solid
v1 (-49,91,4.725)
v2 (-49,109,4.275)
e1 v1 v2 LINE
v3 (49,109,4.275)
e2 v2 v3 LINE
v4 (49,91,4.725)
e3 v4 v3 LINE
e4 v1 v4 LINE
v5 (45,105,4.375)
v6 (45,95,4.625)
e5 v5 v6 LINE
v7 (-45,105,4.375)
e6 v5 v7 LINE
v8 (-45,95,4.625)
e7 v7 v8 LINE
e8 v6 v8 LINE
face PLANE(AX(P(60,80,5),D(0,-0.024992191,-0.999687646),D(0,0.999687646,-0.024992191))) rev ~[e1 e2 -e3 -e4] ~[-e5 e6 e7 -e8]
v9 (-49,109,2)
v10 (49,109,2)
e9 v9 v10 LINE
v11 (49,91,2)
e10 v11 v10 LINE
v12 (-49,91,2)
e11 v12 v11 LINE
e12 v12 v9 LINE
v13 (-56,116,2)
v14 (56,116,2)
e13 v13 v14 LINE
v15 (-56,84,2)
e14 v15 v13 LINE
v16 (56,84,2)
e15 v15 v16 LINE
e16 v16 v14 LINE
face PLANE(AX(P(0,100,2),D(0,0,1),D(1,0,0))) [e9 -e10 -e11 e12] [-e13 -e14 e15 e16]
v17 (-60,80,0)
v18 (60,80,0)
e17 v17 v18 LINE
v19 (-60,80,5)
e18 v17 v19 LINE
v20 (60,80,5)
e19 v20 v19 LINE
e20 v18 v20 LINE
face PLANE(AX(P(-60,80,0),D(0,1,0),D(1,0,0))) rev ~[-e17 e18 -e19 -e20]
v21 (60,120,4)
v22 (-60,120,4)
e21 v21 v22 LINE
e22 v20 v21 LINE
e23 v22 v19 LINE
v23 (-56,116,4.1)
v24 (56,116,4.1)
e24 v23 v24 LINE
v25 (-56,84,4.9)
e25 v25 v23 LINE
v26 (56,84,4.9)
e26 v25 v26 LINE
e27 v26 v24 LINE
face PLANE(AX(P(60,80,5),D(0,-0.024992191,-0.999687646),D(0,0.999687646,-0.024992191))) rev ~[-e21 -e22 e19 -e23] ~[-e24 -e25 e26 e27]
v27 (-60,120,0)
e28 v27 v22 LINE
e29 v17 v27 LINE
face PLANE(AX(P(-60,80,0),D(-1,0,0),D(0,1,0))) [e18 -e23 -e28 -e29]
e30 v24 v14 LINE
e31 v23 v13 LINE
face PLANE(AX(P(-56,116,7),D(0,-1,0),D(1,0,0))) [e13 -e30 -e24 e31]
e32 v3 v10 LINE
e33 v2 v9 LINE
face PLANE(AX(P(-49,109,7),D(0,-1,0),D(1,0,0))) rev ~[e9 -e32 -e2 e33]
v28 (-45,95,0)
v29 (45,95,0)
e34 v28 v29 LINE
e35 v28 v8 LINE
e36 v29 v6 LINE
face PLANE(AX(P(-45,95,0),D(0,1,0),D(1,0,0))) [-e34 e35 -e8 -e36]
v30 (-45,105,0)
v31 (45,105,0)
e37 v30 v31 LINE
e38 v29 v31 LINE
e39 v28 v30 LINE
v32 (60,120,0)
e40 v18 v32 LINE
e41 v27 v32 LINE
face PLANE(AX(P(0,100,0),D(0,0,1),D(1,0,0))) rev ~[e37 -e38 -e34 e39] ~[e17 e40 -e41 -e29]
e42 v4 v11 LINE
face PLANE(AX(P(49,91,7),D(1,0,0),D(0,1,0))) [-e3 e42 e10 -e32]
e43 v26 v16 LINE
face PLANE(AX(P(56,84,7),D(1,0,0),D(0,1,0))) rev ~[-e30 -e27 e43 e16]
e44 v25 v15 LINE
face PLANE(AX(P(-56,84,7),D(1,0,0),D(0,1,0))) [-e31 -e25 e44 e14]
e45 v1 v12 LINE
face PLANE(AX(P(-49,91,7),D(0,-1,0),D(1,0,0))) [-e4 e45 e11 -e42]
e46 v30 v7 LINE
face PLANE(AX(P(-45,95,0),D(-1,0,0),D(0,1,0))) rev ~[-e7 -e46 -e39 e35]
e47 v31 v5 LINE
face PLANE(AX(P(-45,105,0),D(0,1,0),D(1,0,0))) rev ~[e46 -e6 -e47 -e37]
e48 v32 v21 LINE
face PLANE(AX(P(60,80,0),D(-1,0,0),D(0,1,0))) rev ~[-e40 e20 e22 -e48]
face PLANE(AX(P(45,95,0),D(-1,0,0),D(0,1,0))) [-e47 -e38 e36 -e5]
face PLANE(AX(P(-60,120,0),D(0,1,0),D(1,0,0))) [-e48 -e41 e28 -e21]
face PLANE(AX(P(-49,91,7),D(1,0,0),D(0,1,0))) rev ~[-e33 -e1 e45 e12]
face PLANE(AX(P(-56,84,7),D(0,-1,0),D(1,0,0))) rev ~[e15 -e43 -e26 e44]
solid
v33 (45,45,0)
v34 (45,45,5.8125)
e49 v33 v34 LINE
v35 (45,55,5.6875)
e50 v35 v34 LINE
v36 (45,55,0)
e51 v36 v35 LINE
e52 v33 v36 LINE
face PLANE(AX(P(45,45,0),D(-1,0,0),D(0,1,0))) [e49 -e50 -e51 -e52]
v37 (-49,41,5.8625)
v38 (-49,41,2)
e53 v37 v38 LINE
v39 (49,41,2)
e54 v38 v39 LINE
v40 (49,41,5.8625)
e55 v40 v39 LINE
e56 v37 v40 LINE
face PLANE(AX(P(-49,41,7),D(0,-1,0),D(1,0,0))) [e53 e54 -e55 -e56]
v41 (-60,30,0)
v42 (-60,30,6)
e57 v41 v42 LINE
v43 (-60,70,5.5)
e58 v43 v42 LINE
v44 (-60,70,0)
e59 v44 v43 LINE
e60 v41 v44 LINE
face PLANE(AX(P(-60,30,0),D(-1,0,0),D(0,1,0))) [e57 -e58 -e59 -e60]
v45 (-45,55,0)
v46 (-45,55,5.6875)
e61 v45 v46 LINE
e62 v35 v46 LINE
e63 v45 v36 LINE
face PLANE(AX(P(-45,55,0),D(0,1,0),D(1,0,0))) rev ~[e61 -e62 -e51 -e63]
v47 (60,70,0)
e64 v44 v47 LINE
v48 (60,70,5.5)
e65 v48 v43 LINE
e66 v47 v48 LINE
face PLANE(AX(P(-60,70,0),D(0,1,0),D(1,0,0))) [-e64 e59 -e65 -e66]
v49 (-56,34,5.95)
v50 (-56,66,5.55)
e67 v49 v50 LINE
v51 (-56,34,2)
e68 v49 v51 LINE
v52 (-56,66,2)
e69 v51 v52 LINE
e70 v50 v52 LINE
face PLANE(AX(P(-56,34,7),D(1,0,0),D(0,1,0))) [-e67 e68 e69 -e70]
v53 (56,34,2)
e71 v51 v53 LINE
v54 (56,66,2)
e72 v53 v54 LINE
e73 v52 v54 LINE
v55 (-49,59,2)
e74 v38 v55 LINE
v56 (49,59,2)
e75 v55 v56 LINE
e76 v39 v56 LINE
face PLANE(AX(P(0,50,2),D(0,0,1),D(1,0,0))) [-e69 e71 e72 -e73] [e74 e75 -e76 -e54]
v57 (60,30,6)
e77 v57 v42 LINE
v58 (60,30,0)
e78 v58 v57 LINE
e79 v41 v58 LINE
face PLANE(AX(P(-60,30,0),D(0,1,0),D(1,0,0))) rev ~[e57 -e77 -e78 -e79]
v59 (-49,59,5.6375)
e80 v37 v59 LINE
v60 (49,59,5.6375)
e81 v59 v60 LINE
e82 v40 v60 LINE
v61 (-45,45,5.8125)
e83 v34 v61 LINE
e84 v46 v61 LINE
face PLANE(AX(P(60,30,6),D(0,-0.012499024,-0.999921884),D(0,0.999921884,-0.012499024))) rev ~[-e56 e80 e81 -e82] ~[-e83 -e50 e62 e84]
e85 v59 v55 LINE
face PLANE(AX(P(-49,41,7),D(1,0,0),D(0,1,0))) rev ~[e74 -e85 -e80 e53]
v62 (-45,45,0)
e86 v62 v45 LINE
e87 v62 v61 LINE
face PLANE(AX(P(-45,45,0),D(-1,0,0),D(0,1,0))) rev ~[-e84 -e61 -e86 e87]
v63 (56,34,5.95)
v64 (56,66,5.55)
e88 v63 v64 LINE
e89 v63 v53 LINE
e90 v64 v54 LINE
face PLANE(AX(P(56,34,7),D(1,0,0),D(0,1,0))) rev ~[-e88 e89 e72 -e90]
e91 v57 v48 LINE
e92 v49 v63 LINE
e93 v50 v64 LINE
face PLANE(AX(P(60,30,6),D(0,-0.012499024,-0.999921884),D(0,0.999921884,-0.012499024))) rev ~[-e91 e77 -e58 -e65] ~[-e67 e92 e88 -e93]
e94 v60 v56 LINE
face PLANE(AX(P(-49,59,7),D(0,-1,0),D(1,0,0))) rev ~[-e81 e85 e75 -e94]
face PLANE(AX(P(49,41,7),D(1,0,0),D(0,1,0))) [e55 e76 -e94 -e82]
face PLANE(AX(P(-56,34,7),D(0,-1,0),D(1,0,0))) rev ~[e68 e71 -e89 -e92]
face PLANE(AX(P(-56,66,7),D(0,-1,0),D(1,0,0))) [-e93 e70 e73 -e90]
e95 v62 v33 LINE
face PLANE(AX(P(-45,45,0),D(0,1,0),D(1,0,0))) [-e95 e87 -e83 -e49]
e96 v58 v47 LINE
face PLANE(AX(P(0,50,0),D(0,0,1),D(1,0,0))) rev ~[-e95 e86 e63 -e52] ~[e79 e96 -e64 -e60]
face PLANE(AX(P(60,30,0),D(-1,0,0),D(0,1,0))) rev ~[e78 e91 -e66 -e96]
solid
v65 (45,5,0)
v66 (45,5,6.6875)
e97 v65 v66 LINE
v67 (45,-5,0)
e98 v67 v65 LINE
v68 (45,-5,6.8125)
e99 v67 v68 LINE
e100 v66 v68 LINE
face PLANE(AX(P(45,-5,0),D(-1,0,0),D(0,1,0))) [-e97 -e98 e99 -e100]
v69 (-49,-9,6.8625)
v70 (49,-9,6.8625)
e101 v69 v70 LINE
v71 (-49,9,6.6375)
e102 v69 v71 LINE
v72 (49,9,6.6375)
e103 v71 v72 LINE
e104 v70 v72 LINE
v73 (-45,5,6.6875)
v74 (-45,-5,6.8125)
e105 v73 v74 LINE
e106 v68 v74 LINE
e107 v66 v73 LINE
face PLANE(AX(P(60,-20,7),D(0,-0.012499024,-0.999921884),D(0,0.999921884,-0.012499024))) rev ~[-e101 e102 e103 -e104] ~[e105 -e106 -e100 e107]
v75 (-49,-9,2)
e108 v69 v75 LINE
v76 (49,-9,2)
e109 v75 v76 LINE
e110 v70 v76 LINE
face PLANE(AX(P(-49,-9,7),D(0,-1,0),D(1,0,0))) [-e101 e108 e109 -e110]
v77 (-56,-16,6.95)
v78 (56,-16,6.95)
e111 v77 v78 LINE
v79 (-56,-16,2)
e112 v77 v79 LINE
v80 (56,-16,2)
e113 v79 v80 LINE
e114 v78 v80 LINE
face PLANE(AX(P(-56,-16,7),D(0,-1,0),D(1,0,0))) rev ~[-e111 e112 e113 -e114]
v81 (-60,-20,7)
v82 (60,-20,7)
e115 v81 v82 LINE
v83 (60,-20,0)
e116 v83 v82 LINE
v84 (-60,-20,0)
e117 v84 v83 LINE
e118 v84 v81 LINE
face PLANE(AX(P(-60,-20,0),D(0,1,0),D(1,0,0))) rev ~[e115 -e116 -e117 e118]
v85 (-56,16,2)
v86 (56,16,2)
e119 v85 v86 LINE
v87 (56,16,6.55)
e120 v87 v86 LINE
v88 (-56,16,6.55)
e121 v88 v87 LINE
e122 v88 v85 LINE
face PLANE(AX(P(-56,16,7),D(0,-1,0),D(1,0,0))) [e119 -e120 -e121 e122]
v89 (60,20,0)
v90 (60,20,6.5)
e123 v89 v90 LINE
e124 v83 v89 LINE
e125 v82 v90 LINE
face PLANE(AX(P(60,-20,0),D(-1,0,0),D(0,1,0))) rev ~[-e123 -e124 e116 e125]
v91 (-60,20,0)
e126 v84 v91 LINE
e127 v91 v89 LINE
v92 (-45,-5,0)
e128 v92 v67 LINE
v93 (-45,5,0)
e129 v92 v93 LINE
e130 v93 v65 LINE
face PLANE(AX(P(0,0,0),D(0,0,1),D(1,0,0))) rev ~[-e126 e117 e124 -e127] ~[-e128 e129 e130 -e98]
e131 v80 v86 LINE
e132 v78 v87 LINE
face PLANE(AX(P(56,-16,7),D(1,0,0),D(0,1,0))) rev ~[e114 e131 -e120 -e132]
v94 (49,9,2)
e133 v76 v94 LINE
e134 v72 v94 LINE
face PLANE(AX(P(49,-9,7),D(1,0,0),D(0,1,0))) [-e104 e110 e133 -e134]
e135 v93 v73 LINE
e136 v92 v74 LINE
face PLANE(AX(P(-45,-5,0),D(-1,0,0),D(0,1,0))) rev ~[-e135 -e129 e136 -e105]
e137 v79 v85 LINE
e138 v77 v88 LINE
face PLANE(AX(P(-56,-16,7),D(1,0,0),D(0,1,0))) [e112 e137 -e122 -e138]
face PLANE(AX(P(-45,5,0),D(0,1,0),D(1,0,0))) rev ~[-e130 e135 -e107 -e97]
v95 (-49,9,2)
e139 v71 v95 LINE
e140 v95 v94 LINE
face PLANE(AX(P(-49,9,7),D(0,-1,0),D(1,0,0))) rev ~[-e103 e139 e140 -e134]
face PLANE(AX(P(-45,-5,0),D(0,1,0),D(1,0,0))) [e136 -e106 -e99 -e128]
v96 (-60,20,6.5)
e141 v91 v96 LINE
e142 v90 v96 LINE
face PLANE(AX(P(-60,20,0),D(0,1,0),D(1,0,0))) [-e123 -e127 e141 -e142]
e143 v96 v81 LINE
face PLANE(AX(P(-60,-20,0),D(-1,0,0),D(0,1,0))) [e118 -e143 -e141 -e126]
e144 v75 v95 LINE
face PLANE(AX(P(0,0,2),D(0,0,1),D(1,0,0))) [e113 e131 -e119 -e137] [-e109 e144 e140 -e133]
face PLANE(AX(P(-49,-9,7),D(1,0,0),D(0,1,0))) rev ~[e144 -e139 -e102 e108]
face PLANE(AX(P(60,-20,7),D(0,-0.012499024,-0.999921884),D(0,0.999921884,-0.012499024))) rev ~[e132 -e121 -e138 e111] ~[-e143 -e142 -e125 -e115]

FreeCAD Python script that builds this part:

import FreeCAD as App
import Part
import Sketcher

V = App.Vector


def add_polygon(sketch, points):
    """Adds a closed chain of lines whose ends are joined by coincident constraints."""
    first, n = sketch.GeometryCount, len(points)
    for a, b in zip(points, points[1:] + points[:1]):
        sketch.addGeometry(Part.LineSegment(App.Vector(*a, 0), App.Vector(*b, 0)), False)
    for i in range(n):
        sketch.addConstraint(Sketcher.Constraint("Coincident", first + i, 2, first + (i + 1) % n, 1))

doc = App.newDocument("Part")
body = doc.addObject("PartDesign::Body", "Body")
body.AllowCompound = True

# Sketch on XY plane
sketch1 = doc.addObject("Sketcher::SketchObject", "Sketch")
body.addObject(sketch1)
sketch1.AttachmentSupport = (doc.XY_Plane, [""])
sketch1.MapMode = "FlatFace"
add_polygon(sketch1, [(-60, 20), (-60, -20), (60, -20), (60, 20)])  # lines 0-3
add_polygon(sketch1, [(45, -5), (-45, -5), (-45, 5), (45, 5)])  # lines 4-7
add_polygon(sketch1, [(-60, 70), (-60, 30), (60, 30), (60, 70)])  # lines 8-11
add_polygon(sketch1, [(45, 45), (-45, 45), (-45, 55), (45, 55)])  # lines 12-15
add_polygon(sketch1, [(-60, 120), (-60, 80), (60, 80), (60, 120)])  # lines 16-19
add_polygon(sketch1, [(45, 95), (-45, 95), (-45, 105), (45, 105)])  # lines 20-23
sketch1.addConstraint([
    Sketcher.Constraint("Vertical", 0),
    Sketcher.Constraint("Horizontal", 1),
    Sketcher.Constraint("Vertical", 2),
    Sketcher.Constraint("Horizontal", 3),
    Sketcher.Constraint("Horizontal", 4),
    Sketcher.Constraint("Vertical", 5),
    Sketcher.Constraint("Horizontal", 6),
    Sketcher.Constraint("Vertical", 7),
    Sketcher.Constraint("Vertical", 8),
    Sketcher.Constraint("Horizontal", 9),
    Sketcher.Constraint("Vertical", 10),
    Sketcher.Constraint("Horizontal", 11),
    Sketcher.Constraint("Horizontal", 12),
    Sketcher.Constraint("Vertical", 13),
    Sketcher.Constraint("Horizontal", 14),
    Sketcher.Constraint("Vertical", 15),
    Sketcher.Constraint("Vertical", 16),
    Sketcher.Constraint("Horizontal", 17),
    Sketcher.Constraint("Vertical", 18),
    Sketcher.Constraint("Horizontal", 19),
    Sketcher.Constraint("Horizontal", 20),
    Sketcher.Constraint("Vertical", 21),
    Sketcher.Constraint("Horizontal", 22),
    Sketcher.Constraint("Vertical", 23),
    Sketcher.Constraint("Symmetric", 0, 2, 2, 2, -1, 1),
    Sketcher.Constraint("Symmetric", 4, 2, 6, 2, -1, 1),
    Sketcher.Constraint("Vertical", 3, 2, 8, 2),
    Sketcher.Constraint("Vertical", 2, 2, 9, 2),
    Sketcher.Constraint("Vertical", 5, 2, 12, 2),
    Sketcher.Constraint("Vertical", 7, 2, 14, 2),
    Sketcher.Constraint("Vertical", 11, 2, 16, 2),
    Sketcher.Constraint("Vertical", 10, 2, 17, 2),
    Sketcher.Constraint("Vertical", 13, 2, 20, 2),
    Sketcher.Constraint("Vertical", 15, 2, 22, 2),
    Sketcher.Constraint("Equal", 2, 8),
    Sketcher.Constraint("Equal", 7, 13),
    Sketcher.Constraint("Equal", 10, 16),
    Sketcher.Constraint("Equal", 15, 21),
    Sketcher.Constraint("DistanceX", 1, 1, 1, 2, 120.0),
    Sketcher.Constraint("DistanceX", 4, 2, 4, 1, 90.0),
    Sketcher.Constraint("DistanceY", 0, 2, 0, 1, 40.0),
    Sketcher.Constraint("DistanceY", 5, 1, 5, 2, 10.0),
    Sketcher.Constraint("DistanceY", -1, 1, 8, 2, 30.0),
    Sketcher.Constraint("DistanceY", -1, 1, 12, 2, 45.0),
    Sketcher.Constraint("DistanceY", -1, 1, 16, 2, 80.0),
    Sketcher.Constraint("DistanceY", -1, 1, 20, 2, 95.0),
])
pad1 = doc.addObject("PartDesign::Pad", "Pad")
body.addObject(pad1)
pad1.Profile = sketch1
pad1.Length = 7

# Sketch on XY plane
sketch2 = doc.addObject("Sketcher::SketchObject", "Sketch001")
body.addObject(sketch2)
sketch2.AttachmentSupport = (doc.XY_Plane, [""])
sketch2.MapMode = "FlatFace"
sketch2.AttachmentOffset = App.Placement(V(0, 0, 7), App.Rotation())
add_polygon(sketch2, [(-56, 16), (-56, -16), (56, -16), (56, 16)])  # lines 0-3
add_polygon(sketch2, [(49, -9), (-49, -9), (-49, 9), (49, 9)])  # lines 4-7
sketch2.addConstraint([
    Sketcher.Constraint("Vertical", 0),
    Sketcher.Constraint("Horizontal", 1),
    Sketcher.Constraint("Vertical", 2),
    Sketcher.Constraint("Horizontal", 3),
    Sketcher.Constraint("Horizontal", 4),
    Sketcher.Constraint("Vertical", 5),
    Sketcher.Constraint("Horizontal", 6),
    Sketcher.Constraint("Vertical", 7),
    Sketcher.Constraint("Symmetric", 0, 2, 2, 2, -1, 1),
    Sketcher.Constraint("Symmetric", 4, 2, 6, 2, -1, 1),
    Sketcher.Constraint("DistanceX", 1, 1, 1, 2, 112.0),
    Sketcher.Constraint("DistanceX", 4, 2, 4, 1, 98.0),
    Sketcher.Constraint("DistanceY", 0, 2, 0, 1, 32.0),
    Sketcher.Constraint("DistanceY", 5, 1, 5, 2, 18.0),
])
pocket1 = doc.addObject("PartDesign::Pocket", "Pocket")
body.addObject(pocket1)
pocket1.Profile = sketch2
pocket1.Length = 5

# Sketch on XY plane
sketch3 = doc.addObject("Sketcher::SketchObject", "Sketch002")
body.addObject(sketch3)
sketch3.AttachmentSupport = (doc.XY_Plane, [""])
sketch3.MapMode = "FlatFace"
sketch3.AttachmentOffset = App.Placement(V(0, 0, 7), App.Rotation())
add_polygon(sketch3, [(-56, 66), (-56, 34), (56, 34), (56, 66)])  # lines 0-3
add_polygon(sketch3, [(49, 41), (-49, 41), (-49, 59), (49, 59)])  # lines 4-7
sketch3.addConstraint([
    Sketcher.Constraint("Vertical", 0),
    Sketcher.Constraint("Horizontal", 1),
    Sketcher.Constraint("Vertical", 2),
    Sketcher.Constraint("Horizontal", 3),
    Sketcher.Constraint("Horizontal", 4),
    Sketcher.Constraint("Vertical", 5),
    Sketcher.Constraint("Horizontal", 6),
    Sketcher.Constraint("Vertical", 7),
    Sketcher.Constraint("DistanceX", 1, 1, 1, 2, 112.0),
    Sketcher.Constraint("DistanceX", 4, 2, 4, 1, 98.0),
    Sketcher.Constraint("DistanceY", 0, 2, 0, 1, 32.0),
    Sketcher.Constraint("DistanceY", 5, 1, 5, 2, 18.0),
    Sketcher.Constraint("DistanceX", 0, 2, -1, 1, 56.0),
    Sketcher.Constraint("DistanceY", -1, 1, 0, 2, 34.0),
    Sketcher.Constraint("DistanceX", 4, 2, -1, 1, 49.0),
    Sketcher.Constraint("DistanceY", -1, 1, 4, 2, 41.0),
])
pocket2 = doc.addObject("PartDesign::Pocket", "Pocket001")
body.addObject(pocket2)
pocket2.Profile = sketch3
pocket2.Length = 5

# Sketch on XY plane
sketch4 = doc.addObject("Sketcher::SketchObject", "Sketch003")
body.addObject(sketch4)
sketch4.AttachmentSupport = (doc.XY_Plane, [""])
sketch4.MapMode = "FlatFace"
sketch4.AttachmentOffset = App.Placement(V(0, 0, 7), App.Rotation())
add_polygon(sketch4, [(-56, 116), (-56, 84), (56, 84), (56, 116)])  # lines 0-3
add_polygon(sketch4, [(49, 91), (-49, 91), (-49, 109), (49, 109)])  # lines 4-7
sketch4.addConstraint([
    Sketcher.Constraint("Vertical", 0),
    Sketcher.Constraint("Horizontal", 1),
    Sketcher.Constraint("Vertical", 2),
    Sketcher.Constraint("Horizontal", 3),
    Sketcher.Constraint("Horizontal", 4),
    Sketcher.Constraint("Vertical", 5),
    Sketcher.Constraint("Horizontal", 6),
    Sketcher.Constraint("Vertical", 7),
    Sketcher.Constraint("DistanceX", 1, 1, 1, 2, 112.0),
    Sketcher.Constraint("DistanceX", 4, 2, 4, 1, 98.0),
    Sketcher.Constraint("DistanceY", 0, 2, 0, 1, 32.0),
    Sketcher.Constraint("DistanceY", 5, 1, 5, 2, 18.0),
    Sketcher.Constraint("DistanceX", 0, 2, -1, 1, 56.0),
    Sketcher.Constraint("DistanceY", -1, 1, 0, 2, 84.0),
    Sketcher.Constraint("DistanceX", 4, 2, -1, 1, 49.0),
    Sketcher.Constraint("DistanceY", -1, 1, 4, 2, 91.0),
])
pocket3 = doc.addObject("PartDesign::Pocket", "Pocket002")
body.addObject(pocket3)
pocket3.Profile = sketch4
pocket3.Length = 5

# Sketch on YZ plane
sketch5 = doc.addObject("Sketcher::SketchObject", "Sketch004")
body.addObject(sketch5)
sketch5.AttachmentSupport = (doc.YZ_Plane, [""])
sketch5.MapMode = "FlatFace"
sketch5.AttachmentOffset = App.Placement(V(0, 0, 60), App.Rotation())
add_polygon(sketch5, [(20, 7), (-20, 7), (20, 6.5)])  # lines 0-2
sketch5.addConstraint([
    Sketcher.Constraint("Horizontal", 0),
    Sketcher.Constraint("Vertical", 2),
    Sketcher.Constraint("DistanceX", 0, 2, 0, 1, 40.0),
    Sketcher.Constraint("DistanceY", 2, 1, 2, 2, 0.5),
    Sketcher.Constraint("DistanceX", 0, 2, -1, 1, 20.0),
    Sketcher.Constraint("DistanceY", -1, 1, 0, 2, 7.0),
])
pocket4 = doc.addObject("PartDesign::Pocket", "Pocket003")
body.addObject(pocket4)
pocket4.Profile = sketch5
pocket4.Type = "ThroughAll"

# Sketch on YZ plane
sketch6 = doc.addObject("Sketcher::SketchObject", "Sketch005")
body.addObject(sketch6)
sketch6.AttachmentSupport = (doc.YZ_Plane, [""])
sketch6.MapMode = "FlatFace"
sketch6.AttachmentOffset = App.Placement(V(0, 0, 60), App.Rotation())
add_polygon(sketch6, [(30, 7), (30, 6), (70, 5.5), (70, 7)])  # lines 0-3
sketch6.addConstraint([
    Sketcher.Constraint("Vertical", 0),
    Sketcher.Constraint("Vertical", 2),
    Sketcher.Constraint("Horizontal", 3),
    Sketcher.Constraint("DistanceX", 3, 2, 3, 1, 40.0),
    Sketcher.Constraint("DistanceY", 0, 2, 0, 1, 1.0),
    Sketcher.Constraint("DistanceY", 2, 1, 2, 2, 1.5),
    Sketcher.Constraint("DistanceX", -1, 1, 0, 2, 30.0),
    Sketcher.Constraint("DistanceY", -1, 1, 0, 2, 6.0),
])
pocket5 = doc.addObject("PartDesign::Pocket", "Pocket004")
body.addObject(pocket5)
pocket5.Profile = sketch6
pocket5.Type = "ThroughAll"

# Sketch on YZ plane
sketch7 = doc.addObject("Sketcher::SketchObject", "Sketch006")
body.addObject(sketch7)
sketch7.AttachmentSupport = (doc.YZ_Plane, [""])
sketch7.MapMode = "FlatFace"
sketch7.AttachmentOffset = App.Placement(V(0, 0, 60), App.Rotation())
add_polygon(sketch7, [(80, 7), (80, 5), (120, 4), (120, 7)])  # lines 0-3
sketch7.addConstraint([
    Sketcher.Constraint("Vertical", 0),
    Sketcher.Constraint("Vertical", 2),
    Sketcher.Constraint("Horizontal", 3),
    Sketcher.Constraint("DistanceX", 3, 2, 3, 1, 40.0),
    Sketcher.Constraint("DistanceY", 0, 2, 0, 1, 2.0),
    Sketcher.Constraint("DistanceY", 2, 1, 2, 2, 3.0),
    Sketcher.Constraint("DistanceX", -1, 1, 0, 2, 80.0),
    Sketcher.Constraint("DistanceY", -1, 1, 0, 2, 5.0),
])
pocket6 = doc.addObject("PartDesign::Pocket", "Pocket005")
body.addObject(pocket6)
pocket6.Profile = sketch7
pocket6.Type = "ThroughAll"

doc.recompute()
